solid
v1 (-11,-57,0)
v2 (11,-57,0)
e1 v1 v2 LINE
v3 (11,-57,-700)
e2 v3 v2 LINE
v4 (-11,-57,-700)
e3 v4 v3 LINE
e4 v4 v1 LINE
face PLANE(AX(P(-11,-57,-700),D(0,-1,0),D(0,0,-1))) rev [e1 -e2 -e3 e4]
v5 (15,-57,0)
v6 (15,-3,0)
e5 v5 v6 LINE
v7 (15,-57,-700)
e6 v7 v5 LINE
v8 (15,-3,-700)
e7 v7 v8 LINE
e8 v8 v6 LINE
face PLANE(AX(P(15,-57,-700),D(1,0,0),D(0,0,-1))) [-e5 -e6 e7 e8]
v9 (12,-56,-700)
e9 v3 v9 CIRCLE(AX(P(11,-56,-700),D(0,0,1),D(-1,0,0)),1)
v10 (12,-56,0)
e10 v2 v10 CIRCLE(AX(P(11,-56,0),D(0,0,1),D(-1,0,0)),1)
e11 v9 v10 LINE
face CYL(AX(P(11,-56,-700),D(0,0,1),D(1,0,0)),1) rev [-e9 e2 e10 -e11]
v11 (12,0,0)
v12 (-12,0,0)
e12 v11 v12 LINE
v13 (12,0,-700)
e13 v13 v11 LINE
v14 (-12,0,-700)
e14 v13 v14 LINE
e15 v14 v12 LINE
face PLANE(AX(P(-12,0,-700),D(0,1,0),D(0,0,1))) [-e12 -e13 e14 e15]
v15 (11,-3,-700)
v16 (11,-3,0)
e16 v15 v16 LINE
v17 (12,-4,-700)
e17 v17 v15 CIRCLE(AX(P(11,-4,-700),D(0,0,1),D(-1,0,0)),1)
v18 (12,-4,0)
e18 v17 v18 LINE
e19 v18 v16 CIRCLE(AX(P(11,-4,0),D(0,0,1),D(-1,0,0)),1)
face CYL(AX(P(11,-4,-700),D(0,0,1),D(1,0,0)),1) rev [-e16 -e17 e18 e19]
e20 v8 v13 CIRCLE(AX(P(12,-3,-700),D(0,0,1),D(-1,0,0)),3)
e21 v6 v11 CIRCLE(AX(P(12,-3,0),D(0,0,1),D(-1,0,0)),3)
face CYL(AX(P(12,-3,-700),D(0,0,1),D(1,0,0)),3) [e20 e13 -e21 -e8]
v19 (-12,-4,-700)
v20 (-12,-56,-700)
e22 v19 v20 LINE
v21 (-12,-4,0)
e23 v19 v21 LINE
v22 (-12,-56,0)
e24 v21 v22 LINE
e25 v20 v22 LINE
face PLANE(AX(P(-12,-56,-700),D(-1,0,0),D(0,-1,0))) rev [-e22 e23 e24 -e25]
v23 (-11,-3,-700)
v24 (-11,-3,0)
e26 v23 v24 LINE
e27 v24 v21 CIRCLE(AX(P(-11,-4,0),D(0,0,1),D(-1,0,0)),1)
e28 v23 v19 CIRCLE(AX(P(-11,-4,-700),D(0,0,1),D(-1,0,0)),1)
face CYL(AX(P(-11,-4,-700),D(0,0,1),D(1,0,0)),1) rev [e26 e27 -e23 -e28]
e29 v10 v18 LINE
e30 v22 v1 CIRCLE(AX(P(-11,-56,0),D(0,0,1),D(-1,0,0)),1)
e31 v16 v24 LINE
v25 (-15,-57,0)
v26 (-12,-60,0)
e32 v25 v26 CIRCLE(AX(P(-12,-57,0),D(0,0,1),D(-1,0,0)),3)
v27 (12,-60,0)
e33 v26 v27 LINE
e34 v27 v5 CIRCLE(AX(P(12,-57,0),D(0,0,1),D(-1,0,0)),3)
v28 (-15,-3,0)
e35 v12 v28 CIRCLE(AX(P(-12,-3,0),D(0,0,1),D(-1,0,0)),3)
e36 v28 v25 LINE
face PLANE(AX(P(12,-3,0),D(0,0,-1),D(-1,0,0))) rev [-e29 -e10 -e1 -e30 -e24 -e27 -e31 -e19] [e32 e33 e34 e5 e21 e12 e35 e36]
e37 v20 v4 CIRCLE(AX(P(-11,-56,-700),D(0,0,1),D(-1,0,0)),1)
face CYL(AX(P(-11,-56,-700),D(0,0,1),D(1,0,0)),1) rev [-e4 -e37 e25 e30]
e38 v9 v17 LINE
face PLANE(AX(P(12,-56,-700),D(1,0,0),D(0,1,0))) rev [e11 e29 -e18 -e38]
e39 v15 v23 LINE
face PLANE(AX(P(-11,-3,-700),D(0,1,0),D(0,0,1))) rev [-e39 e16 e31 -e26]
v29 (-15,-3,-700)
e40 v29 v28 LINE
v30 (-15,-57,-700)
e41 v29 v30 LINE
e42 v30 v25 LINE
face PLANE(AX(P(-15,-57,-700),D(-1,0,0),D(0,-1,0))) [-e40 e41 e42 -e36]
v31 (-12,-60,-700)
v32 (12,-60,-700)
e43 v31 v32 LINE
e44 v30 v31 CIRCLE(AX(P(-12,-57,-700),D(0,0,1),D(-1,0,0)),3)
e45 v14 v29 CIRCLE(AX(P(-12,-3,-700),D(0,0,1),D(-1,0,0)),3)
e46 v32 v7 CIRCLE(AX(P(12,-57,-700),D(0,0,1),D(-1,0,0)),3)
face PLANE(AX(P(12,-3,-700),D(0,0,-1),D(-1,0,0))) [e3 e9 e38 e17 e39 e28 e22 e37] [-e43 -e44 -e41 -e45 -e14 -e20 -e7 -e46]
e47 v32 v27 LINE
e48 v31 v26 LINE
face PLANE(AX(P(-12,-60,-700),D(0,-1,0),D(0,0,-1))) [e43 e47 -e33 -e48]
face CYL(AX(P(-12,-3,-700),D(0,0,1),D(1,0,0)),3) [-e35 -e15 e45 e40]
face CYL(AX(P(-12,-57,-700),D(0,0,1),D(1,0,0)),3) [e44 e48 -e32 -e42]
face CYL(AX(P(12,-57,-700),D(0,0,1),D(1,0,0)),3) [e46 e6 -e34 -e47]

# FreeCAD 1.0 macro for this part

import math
import FreeCAD as App
import Part
import Sketcher
Q = App.Units.Quantity

doc = App.newDocument("Part")
body = doc.addObject("PartDesign::Body", "Body")

# Sketch on XY plane
sketch1 = doc.addObject("Sketcher::SketchObject", "Sketch")
body.addObject(sketch1)
sketch1.AttachmentSupport = (doc.XY_Plane, [""])
sketch1.MapMode = "FlatFace"
sketch1.addGeometry([
    Part.LineSegment(App.Vector(-12, -60, 0), App.Vector(12, -60, 0)),  # 0
    Part.ArcOfCircle(Part.Circle(App.Vector(12, -57, 0), App.Vector(0, 0, 1), 3), math.radians(-90), math.radians(0)),  # 1
    Part.LineSegment(App.Vector(15, -57, 0), App.Vector(15, -3, 0)),  # 2
    Part.ArcOfCircle(Part.Circle(App.Vector(12, -3, 0), App.Vector(0, 0, 1), 3), math.radians(0), math.radians(90)),  # 3
    Part.LineSegment(App.Vector(12, 0, 0), App.Vector(-12, 0, 0)),  # 4
    Part.ArcOfCircle(Part.Circle(App.Vector(-12, -3, 0), App.Vector(0, 0, 1), 3), math.radians(90), math.radians(180)),  # 5
    Part.LineSegment(App.Vector(-15, -3, 0), App.Vector(-15, -57, 0)),  # 6
    Part.ArcOfCircle(Part.Circle(App.Vector(-12, -57, 0), App.Vector(0, 0, 1), 3), math.radians(180), math.radians(270)),  # 7
    Part.ArcOfCircle(Part.Circle(App.Vector(-11, -4, 0), App.Vector(0, 0, 1), 1), math.radians(90), math.radians(180)),  # 8
    Part.LineSegment(App.Vector(-11, -3, 0), App.Vector(11, -3, 0)),  # 9
    Part.ArcOfCircle(Part.Circle(App.Vector(11, -4, 0), App.Vector(0, 0, 1), 1), math.radians(0), math.radians(90)),  # 10
    Part.LineSegment(App.Vector(12, -4, 0), App.Vector(12, -56, 0)),  # 11
    Part.ArcOfCircle(Part.Circle(App.Vector(11, -56, 0), App.Vector(0, 0, 1), 1), math.radians(-90), math.radians(0)),  # 12
    Part.LineSegment(App.Vector(11, -57, 0), App.Vector(-11, -57, 0)),  # 13
    Part.ArcOfCircle(Part.Circle(App.Vector(-11, -56, 0), App.Vector(0, 0, 1), 1), math.radians(-180), math.radians(-90)),  # 14
    Part.LineSegment(App.Vector(-12, -56, 0), App.Vector(-12, -4, 0)),  # 15
], False)
sketch1.addConstraint([
    Sketcher.Constraint("Tangent", 0, 2, 1, 1),
    Sketcher.Constraint("Tangent", 1, 2, 2, 1),
    Sketcher.Constraint("Tangent", 2, 2, 3, 1),
    Sketcher.Constraint("Tangent", 3, 2, 4, 1),
    Sketcher.Constraint("Tangent", 4, 2, 5, 1),
    Sketcher.Constraint("Tangent", 5, 2, 6, 1),
    Sketcher.Constraint("Tangent", 6, 2, 7, 1),
    Sketcher.Constraint("Tangent", 7, 2, 0, 1),
    Sketcher.Constraint("Tangent", 8, 1, 9, 1),
    Sketcher.Constraint("Tangent", 9, 2, 10, 2),
    Sketcher.Constraint("Tangent", 10, 1, 11, 1),
    Sketcher.Constraint("Tangent", 11, 2, 12, 2),
    Sketcher.Constraint("Tangent", 12, 1, 13, 1),
    Sketcher.Constraint("Tangent", 13, 2, 14, 2),
    Sketcher.Constraint("Tangent", 14, 1, 15, 1),
    Sketcher.Constraint("Tangent", 15, 2, 8, 2),
    Sketcher.Constraint("Horizontal", 0),
    Sketcher.Constraint("Vertical", 2),
    Sketcher.Constraint("Horizontal", 4),
    Sketcher.Constraint("Vertical", 6),
    Sketcher.Constraint("Horizontal", 9),
    Sketcher.Constraint("Vertical", 11),
    Sketcher.Constraint("Horizontal", 13),
    Sketcher.Constraint("Vertical", 15),
    Sketcher.Constraint("Equal", 1, 3),
    Sketcher.Constraint("Equal", 3, 5),
    Sketcher.Constraint("Equal", 5, 7),
    Sketcher.Constraint("Equal", 8, 10),
    Sketcher.Constraint("Equal", 10, 12),
    Sketcher.Constraint("Equal", 12, 14),
    Sketcher.Constraint("Symmetric", 3, 2, 4, 2, -1, 1),
    Sketcher.Constraint("Horizontal", 5, 2, 8, 1),
    Sketcher.Constraint("Horizontal", 6, 2, 12, 1),
    Sketcher.Constraint("Vertical", 3, 2, 10, 1),
    Sketcher.Constraint("Vertical", 7, 2, 14, 1),
    Sketcher.Constraint("Radius", 1, Q("3 mm")),
    Sketcher.Constraint("Radius", 8, Q("1 mm")),
    Sketcher.Constraint("DistanceX", 0, 1, 0, 2, Q("24 mm")),
    Sketcher.Constraint("DistanceY", 2, 1, 2, 2, Q("54 mm")),
])
pad1 = doc.addObject("PartDesign::Pad", "Pad")
body.addObject(pad1)
pad1.Profile = sketch1
pad1.Length = 700
pad1.Reversed = True

doc.recompute()
